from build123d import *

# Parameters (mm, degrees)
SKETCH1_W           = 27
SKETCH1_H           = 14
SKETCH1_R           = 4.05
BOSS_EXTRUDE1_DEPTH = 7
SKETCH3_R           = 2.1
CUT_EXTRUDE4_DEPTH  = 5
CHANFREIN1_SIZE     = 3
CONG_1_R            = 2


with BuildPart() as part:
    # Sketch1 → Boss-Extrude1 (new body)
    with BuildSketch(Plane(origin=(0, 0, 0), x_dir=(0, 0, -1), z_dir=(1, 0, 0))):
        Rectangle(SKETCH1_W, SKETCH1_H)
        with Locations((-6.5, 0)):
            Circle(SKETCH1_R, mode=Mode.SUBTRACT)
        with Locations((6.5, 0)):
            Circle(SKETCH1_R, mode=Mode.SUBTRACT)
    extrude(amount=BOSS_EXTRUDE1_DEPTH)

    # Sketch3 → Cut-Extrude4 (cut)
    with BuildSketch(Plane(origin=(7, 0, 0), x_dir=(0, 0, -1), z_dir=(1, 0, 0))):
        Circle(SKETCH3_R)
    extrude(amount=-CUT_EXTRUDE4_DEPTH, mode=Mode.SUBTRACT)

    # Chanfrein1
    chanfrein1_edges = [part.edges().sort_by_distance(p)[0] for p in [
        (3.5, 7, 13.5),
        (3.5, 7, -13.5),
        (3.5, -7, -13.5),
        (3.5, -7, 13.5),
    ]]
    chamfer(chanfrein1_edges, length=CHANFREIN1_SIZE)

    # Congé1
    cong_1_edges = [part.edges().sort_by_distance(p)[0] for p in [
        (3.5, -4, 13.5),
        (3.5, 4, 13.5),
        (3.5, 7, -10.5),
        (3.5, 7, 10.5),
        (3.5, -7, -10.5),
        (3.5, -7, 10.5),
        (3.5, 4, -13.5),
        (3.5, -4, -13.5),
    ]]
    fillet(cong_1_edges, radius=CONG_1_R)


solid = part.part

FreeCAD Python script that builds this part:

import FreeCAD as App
import Part
import Sketcher
from FreeCAD import Vector


def edges_at(feature, points):
    """Names of the edges that pass closest to the given points."""
    edges = feature.Shape.Edges
    near = lambda p: min(range(len(edges)), key=lambda i: edges[i].distToShape(Part.Vertex(*p))[0])
    return sorted({f"Edge{near(p) + 1}" for p in points})


def add_polygon(sketch, points):
    """Adds a closed chain of lines whose ends are joined by coincident constraints."""
    first, n = sketch.GeometryCount, len(points)
    for a, b in zip(points, points[1:] + points[:1]):
        sketch.addGeometry(Part.LineSegment(App.Vector(*a, 0), App.Vector(*b, 0)), False)
    for i in range(n):
        sketch.addConstraint(Sketcher.Constraint("Coincident", first + i, 2, first + (i + 1) % n, 1))

doc = App.newDocument("Part")
body = doc.addObject("PartDesign::Body", "Body")

# Sketch on YZ plane
sketch1 = body.newObject("Sketcher::SketchObject", "Sketch")
sketch1.AttachmentSupport = (doc.getObject("YZ_Plane"), [""])
sketch1.MapMode = "FlatFace"
add_polygon(sketch1, [(7, 13.5), (-7, 13.5), (-7, -13.5), (7, -13.5)])  # lines 0-3
sketch1.addGeometry(Part.Circle(Vector(0, 6.5, 0), Vector(0, 0, 1), 4), False)  # 4
sketch1.addGeometry(Part.Circle(Vector(0, -6.5, 0), Vector(0, 0, 1), 4), False)  # 5
sketch1.addConstraint([
    Sketcher.Constraint("Horizontal", 0),
    Sketcher.Constraint("Vertical", 1),
    Sketcher.Constraint("Horizontal", 2),
    Sketcher.Constraint("Vertical", 3),
    Sketcher.Constraint("Equal", 4, 5),
    Sketcher.Constraint("Symmetric", 4, 3, 5, 3, -1, 1),
    Sketcher.Constraint("Symmetric", 0, 2, 2, 2, -1, 1),
    Sketcher.Constraint("PointOnObject", 4, 3, -2),
    Sketcher.Constraint("Diameter", 4, 8.1),
    Sketcher.Constraint("DistanceX", 0, 2, 0, 1, 14.0),
    Sketcher.Constraint("DistanceY", 1, 2, 1, 1, 27.0),
    Sketcher.Constraint("DistanceY", 5, 3, 4, 3, 13.0),
])
pad1 = body.newObject("PartDesign::Pad", "Pad")
pad1.Profile = sketch1
pad1.Length = 7

# Sketch on YZ plane
sketch2 = body.newObject("Sketcher::SketchObject", "Sketch001")
sketch2.AttachmentSupport = (doc.getObject("YZ_Plane"), [""])
sketch2.MapMode = "FlatFace"
sketch2.AttachmentOffset = App.Placement(Vector(0, 0, 7), App.Rotation())
sketch2.addGeometry(Part.Circle(Vector(0, 0, 0), Vector(0, 0, 1), 2.1), False)
sketch2.addConstraint([
    Sketcher.Constraint("Coincident", 0, 3, -1, 1),
    Sketcher.Constraint("Diameter", 0, 4.2),
])
pocket1 = body.newObject("PartDesign::Pocket", "Pocket")
pocket1.Profile = sketch2
pocket1.Length = 5
doc.recompute()

chamfer = body.newObject("PartDesign::Chamfer", "Chamfer")
chamfer.Base = (pocket1, edges_at(pocket1, [
    (3.5, 7, 13.5),
    (3.5, 7, -13.5),
    (3.5, -7, -13.5),
    (3.5, -7, 13.5),
]))
chamfer.Size = 3
doc.recompute()

fillet = body.newObject("PartDesign::Fillet", "Fillet")
fillet.Base = (chamfer, edges_at(chamfer, [
    (3.5, -4, 13.5),
    (3.5, 4, 13.5),
    (3.5, 7, -10.5),
    (3.5, 7, 10.5),
    (3.5, -7, -10.5),
    (3.5, -7, 10.5),
    (3.5, 4, -13.5),
    (3.5, -4, -13.5),
]))
fillet.Radius = 2

doc.recompute()
